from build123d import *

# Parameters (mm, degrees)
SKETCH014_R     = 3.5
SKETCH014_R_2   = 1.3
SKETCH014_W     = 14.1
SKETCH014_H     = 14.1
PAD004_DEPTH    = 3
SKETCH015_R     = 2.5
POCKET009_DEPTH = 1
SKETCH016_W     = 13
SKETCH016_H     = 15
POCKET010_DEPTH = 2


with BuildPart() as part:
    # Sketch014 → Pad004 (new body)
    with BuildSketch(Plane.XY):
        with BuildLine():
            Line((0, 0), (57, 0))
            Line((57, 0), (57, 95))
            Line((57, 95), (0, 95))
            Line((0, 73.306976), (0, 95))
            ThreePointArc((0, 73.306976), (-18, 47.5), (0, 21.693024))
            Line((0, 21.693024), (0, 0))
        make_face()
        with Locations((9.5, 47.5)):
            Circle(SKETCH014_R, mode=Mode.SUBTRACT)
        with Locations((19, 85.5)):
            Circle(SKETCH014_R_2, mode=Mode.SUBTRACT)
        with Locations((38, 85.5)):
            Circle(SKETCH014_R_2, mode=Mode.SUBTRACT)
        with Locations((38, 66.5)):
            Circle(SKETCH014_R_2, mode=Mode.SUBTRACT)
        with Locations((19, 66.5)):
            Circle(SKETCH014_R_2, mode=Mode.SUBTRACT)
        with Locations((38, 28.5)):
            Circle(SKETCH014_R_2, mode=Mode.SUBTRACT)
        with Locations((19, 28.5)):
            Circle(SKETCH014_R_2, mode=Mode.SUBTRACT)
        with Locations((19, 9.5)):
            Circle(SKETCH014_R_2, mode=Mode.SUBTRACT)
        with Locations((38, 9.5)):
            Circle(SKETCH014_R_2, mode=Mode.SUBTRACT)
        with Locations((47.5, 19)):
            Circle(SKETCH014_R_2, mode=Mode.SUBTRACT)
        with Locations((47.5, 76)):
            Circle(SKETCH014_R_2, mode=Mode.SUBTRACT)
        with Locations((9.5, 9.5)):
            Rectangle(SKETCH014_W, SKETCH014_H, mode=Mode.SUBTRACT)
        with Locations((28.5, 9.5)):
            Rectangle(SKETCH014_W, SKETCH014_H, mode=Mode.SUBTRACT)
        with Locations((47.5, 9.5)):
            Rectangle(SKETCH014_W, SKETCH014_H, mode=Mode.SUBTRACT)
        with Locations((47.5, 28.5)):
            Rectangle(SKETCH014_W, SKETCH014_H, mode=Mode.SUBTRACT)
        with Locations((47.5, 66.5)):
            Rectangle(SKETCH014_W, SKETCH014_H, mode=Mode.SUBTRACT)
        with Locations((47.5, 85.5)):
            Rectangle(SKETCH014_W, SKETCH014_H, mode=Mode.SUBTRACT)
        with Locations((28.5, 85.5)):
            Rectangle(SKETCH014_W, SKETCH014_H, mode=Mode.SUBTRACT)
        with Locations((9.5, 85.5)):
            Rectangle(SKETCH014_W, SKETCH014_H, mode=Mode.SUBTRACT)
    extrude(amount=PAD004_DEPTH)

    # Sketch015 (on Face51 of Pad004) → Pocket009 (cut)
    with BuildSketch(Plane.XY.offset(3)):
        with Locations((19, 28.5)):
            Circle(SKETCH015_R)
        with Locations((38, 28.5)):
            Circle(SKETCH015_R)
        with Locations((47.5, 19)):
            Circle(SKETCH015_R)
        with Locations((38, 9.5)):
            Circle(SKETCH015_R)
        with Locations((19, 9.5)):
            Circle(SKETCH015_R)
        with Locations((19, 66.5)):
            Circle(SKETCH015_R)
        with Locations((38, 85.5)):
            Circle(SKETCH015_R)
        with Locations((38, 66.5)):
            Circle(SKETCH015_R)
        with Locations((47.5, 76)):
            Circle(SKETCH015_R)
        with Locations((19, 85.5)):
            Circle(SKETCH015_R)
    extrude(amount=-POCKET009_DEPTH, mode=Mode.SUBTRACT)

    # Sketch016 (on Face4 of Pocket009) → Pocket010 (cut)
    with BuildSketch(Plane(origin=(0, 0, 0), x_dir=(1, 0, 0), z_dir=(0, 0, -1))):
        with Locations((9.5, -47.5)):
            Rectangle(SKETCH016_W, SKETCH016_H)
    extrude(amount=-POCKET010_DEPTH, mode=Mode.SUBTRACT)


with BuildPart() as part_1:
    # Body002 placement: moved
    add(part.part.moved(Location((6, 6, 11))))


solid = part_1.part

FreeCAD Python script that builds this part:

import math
import FreeCAD as App
import Part
import Sketcher

V = App.Vector

doc = App.newDocument("Part")
params = doc.addObject("Spreadsheet::Sheet", "Params")
for row, (alias, value) in enumerate([
    ("sketch1_diameter", "7 mm"),
    ("sketch1_diameter2", "2.6 mm"),
    ("sketch1_radius", "27.5 mm"),
    ("sketch1_width", "57 mm"),
    ("sketch1_height", "95 mm"),
    ("pad1_length", "3 mm"),
    ("sketch2_diameter", "5 mm"),
    ("pocket1_length", "1 mm"),
    ("sketch3_width", "13 mm"),
    ("sketch3_height", "15 mm"),
    ("pocket2_length", "2 mm"),
], start=1):
    params.set(f"A{row}", alias)
    params.set(f"B{row}", "=" + value)
    params.setAlias(f"B{row}", alias)

body = doc.addObject("PartDesign::Body", "Body")

# Sketch on XY plane
sketch1 = body.newObject("Sketcher::SketchObject", "Sketch")
sketch1.AttachmentSupport = (doc.getObject("XY_Plane"), [""])
sketch1.MapMode = "FlatFace"
sketch1.addGeometry([
    Part.LineSegment(V(0, 0, 0), V(57, 0, 0)),  # 0
    Part.LineSegment(V(57, 0, 0), V(57, 95, 0)),  # 1
    Part.LineSegment(V(57, 95, 0), V(0, 95, 0)),  # 2
    Part.LineSegment(V(0, 95, 0), V(0, 73.306976, 0)),  # 3
    Part.ArcOfCircle(Part.Circle(V(9.5, 47.5, 0), V(0, 0, 1), 27.5), math.radians(110.209546), math.radians(249.790454)),  # 4
    Part.LineSegment(V(0, 21.693024, 0), V(0, 0, 0)),  # 5
    Part.LineSegment(V(16.55, 2.45, 0), V(2.45, 2.45, 0)),  # 6
    Part.LineSegment(V(2.45, 2.45, 0), V(2.45, 16.55, 0)),  # 7
    Part.LineSegment(V(2.45, 16.55, 0), V(16.55, 16.55, 0)),  # 8
    Part.LineSegment(V(16.55, 16.55, 0), V(16.55, 2.45, 0)),  # 9
    Part.Circle(V(19, 9.5, 0), V(0, 0, 1), 1.3),  # 10
    Part.Circle(V(19, 28.5, 0), V(0, 0, 1), 1.3),  # 11
    Part.LineSegment(V(35.55, 2.45, 0), V(21.45, 2.45, 0)),  # 12
    Part.LineSegment(V(21.45, 2.45, 0), V(21.45, 16.55, 0)),  # 13
    Part.LineSegment(V(21.45, 16.55, 0), V(35.55, 16.55, 0)),  # 14
    Part.LineSegment(V(35.55, 16.55, 0), V(35.55, 2.45, 0)),  # 15
    Part.Circle(V(38, 9.5, 0), V(0, 0, 1), 1.3),  # 16
    Part.LineSegment(V(54.55, 2.45, 0), V(40.45, 2.45, 0)),  # 17
    Part.LineSegment(V(40.45, 2.45, 0), V(40.45, 16.55, 0)),  # 18
    Part.LineSegment(V(40.45, 16.55, 0), V(54.55, 16.55, 0)),  # 19
    Part.LineSegment(V(54.55, 16.55, 0), V(54.55, 2.45, 0)),  # 20
    Part.Circle(V(47.5, 19, 0), V(0, 0, 1), 1.3),  # 21
    Part.Circle(V(38, 28.5, 0), V(0, 0, 1), 1.3),  # 22
    Part.LineSegment(V(54.55, 21.45, 0), V(40.45, 21.45, 0)),  # 23
    Part.LineSegment(V(40.45, 21.45, 0), V(40.45, 35.55, 0)),  # 24
    Part.LineSegment(V(40.45, 35.55, 0), V(54.55, 35.55, 0)),  # 25
    Part.LineSegment(V(54.55, 35.55, 0), V(54.55, 21.45, 0)),  # 26
    Part.Circle(V(9.5, 47.5, 0), V(0, 0, 1), 3.5),  # 27
    Part.Circle(V(19, 66.5, 0), V(0, 0, 1), 1.3),  # 28
    Part.LineSegment(V(16.55, 78.45, 0), V(2.45, 78.45, 0)),  # 29
    Part.LineSegment(V(2.45, 78.45, 0), V(2.45, 92.55, 0)),  # 30
    Part.LineSegment(V(2.45, 92.55, 0), V(16.55, 92.55, 0)),  # 31
    Part.LineSegment(V(16.55, 92.55, 0), V(16.55, 78.45, 0)),  # 32
    Part.Circle(V(19, 85.5, 0), V(0, 0, 1), 1.3),  # 33
    Part.Circle(V(38, 66.5, 0), V(0, 0, 1), 1.3),  # 34
    Part.LineSegment(V(54.55, 59.45, 0), V(40.45, 59.45, 0)),  # 35
    Part.LineSegment(V(40.45, 59.45, 0), V(40.45, 73.55, 0)),  # 36
    Part.LineSegment(V(40.45, 73.55, 0), V(54.55, 73.55, 0)),  # 37
    Part.LineSegment(V(54.55, 73.55, 0), V(54.55, 59.45, 0)),  # 38
    Part.LineSegment(V(35.55, 78.45, 0), V(21.45, 78.45, 0)),  # 39
    Part.LineSegment(V(21.45, 78.45, 0), V(21.45, 92.55, 0)),  # 40
    Part.LineSegment(V(21.45, 92.55, 0), V(35.55, 92.55, 0)),  # 41
    Part.LineSegment(V(35.55, 92.55, 0), V(35.55, 78.45, 0)),  # 42
    Part.Circle(V(38, 85.5, 0), V(0, 0, 1), 1.3),  # 43
    Part.Circle(V(47.5, 76, 0), V(0, 0, 1), 1.3),  # 44
    Part.LineSegment(V(54.55, 78.45, 0), V(40.45, 78.45, 0)),  # 45
    Part.LineSegment(V(40.45, 78.45, 0), V(40.45, 92.55, 0)),  # 46
    Part.LineSegment(V(40.45, 92.55, 0), V(54.55, 92.55, 0)),  # 47
    Part.LineSegment(V(54.55, 92.55, 0), V(54.55, 78.45, 0)),  # 48
], False)
sketch1.addConstraint([
    Sketcher.Constraint("Coincident", 0, 2, 1, 1),
    Sketcher.Constraint("Coincident", 1, 2, 2, 1),
    Sketcher.Constraint("Coincident", 2, 2, 3, 1),
    Sketcher.Constraint("Coincident", 3, 2, 4, 1),
    Sketcher.Constraint("Coincident", 4, 2, 5, 1),
    Sketcher.Constraint("Coincident", 5, 2, 0, 1),
    Sketcher.Constraint("Coincident", 6, 2, 7, 1),
    Sketcher.Constraint("Coincident", 7, 2, 8, 1),
    Sketcher.Constraint("Coincident", 8, 2, 9, 1),
    Sketcher.Constraint("Coincident", 9, 2, 6, 1),
    Sketcher.Constraint("Coincident", 12, 2, 13, 1),
    Sketcher.Constraint("Coincident", 13, 2, 14, 1),
    Sketcher.Constraint("Coincident", 14, 2, 15, 1),
    Sketcher.Constraint("Coincident", 15, 2, 12, 1),
    Sketcher.Constraint("Coincident", 17, 2, 18, 1),
    Sketcher.Constraint("Coincident", 18, 2, 19, 1),
    Sketcher.Constraint("Coincident", 19, 2, 20, 1),
    Sketcher.Constraint("Coincident", 20, 2, 17, 1),
    Sketcher.Constraint("Coincident", 23, 2, 24, 1),
    Sketcher.Constraint("Coincident", 24, 2, 25, 1),
    Sketcher.Constraint("Coincident", 25, 2, 26, 1),
    Sketcher.Constraint("Coincident", 26, 2, 23, 1),
    Sketcher.Constraint("Coincident", 29, 2, 30, 1),
    Sketcher.Constraint("Coincident", 30, 2, 31, 1),
    Sketcher.Constraint("Coincident", 31, 2, 32, 1),
    Sketcher.Constraint("Coincident", 32, 2, 29, 1),
    Sketcher.Constraint("Coincident", 35, 2, 36, 1),
    Sketcher.Constraint("Coincident", 36, 2, 37, 1),
    Sketcher.Constraint("Coincident", 37, 2, 38, 1),
    Sketcher.Constraint("Coincident", 38, 2, 35, 1),
    Sketcher.Constraint("Coincident", 39, 2, 40, 1),
    Sketcher.Constraint("Coincident", 40, 2, 41, 1),
    Sketcher.Constraint("Coincident", 41, 2, 42, 1),
    Sketcher.Constraint("Coincident", 42, 2, 39, 1),
    Sketcher.Constraint("Coincident", 45, 2, 46, 1),
    Sketcher.Constraint("Coincident", 46, 2, 47, 1),
    Sketcher.Constraint("Coincident", 47, 2, 48, 1),
    Sketcher.Constraint("Coincident", 48, 2, 45, 1),
    Sketcher.Constraint("Horizontal", 0),
    Sketcher.Constraint("Vertical", 1),
    Sketcher.Constraint("Horizontal", 2),
    Sketcher.Constraint("Vertical", 3),
    Sketcher.Constraint("Vertical", 5),
    Sketcher.Constraint("Horizontal", 6),
    Sketcher.Constraint("Vertical", 7),
    Sketcher.Constraint("Horizontal", 8),
    Sketcher.Constraint("Vertical", 9),
    Sketcher.Constraint("Horizontal", 12),
    Sketcher.Constraint("Vertical", 13),
    Sketcher.Constraint("Horizontal", 14),
    Sketcher.Constraint("Vertical", 15),
    Sketcher.Constraint("Horizontal", 17),
    Sketcher.Constraint("Vertical", 18),
    Sketcher.Constraint("Horizontal", 19),
    Sketcher.Constraint("Vertical", 20),
    Sketcher.Constraint("Horizontal", 23),
    Sketcher.Constraint("Vertical", 24),
    Sketcher.Constraint("Horizontal", 25),
    Sketcher.Constraint("Vertical", 26),
    Sketcher.Constraint("Horizontal", 29),
    Sketcher.Constraint("Vertical", 30),
    Sketcher.Constraint("Horizontal", 31),
    Sketcher.Constraint("Vertical", 32),
    Sketcher.Constraint("Horizontal", 35),
    Sketcher.Constraint("Vertical", 36),
    Sketcher.Constraint("Horizontal", 37),
    Sketcher.Constraint("Vertical", 38),
    Sketcher.Constraint("Horizontal", 39),
    Sketcher.Constraint("Vertical", 40),
    Sketcher.Constraint("Horizontal", 41),
    Sketcher.Constraint("Vertical", 42),
    Sketcher.Constraint("Horizontal", 45),
    Sketcher.Constraint("Vertical", 46),
    Sketcher.Constraint("Horizontal", 47),
    Sketcher.Constraint("Vertical", 48),
    Sketcher.Constraint("Coincident", 5, 2, -1, 1),
    Sketcher.Constraint("Coincident", 27, 3, 4, 3),
    Sketcher.Constraint("Equal", 10, 11),
    Sketcher.Constraint("Equal", 11, 16),
    Sketcher.Constraint("Equal", 16, 21),
    Sketcher.Constraint("Equal", 21, 22),
    Sketcher.Constraint("Equal", 22, 28),
    Sketcher.Constraint("Equal", 28, 33),
    Sketcher.Constraint("Equal", 33, 34),
    Sketcher.Constraint("Equal", 34, 43),
    Sketcher.Constraint("Equal", 43, 44),
    Sketcher.Constraint("PointOnObject", 2, 2, -2),
    Sketcher.Constraint("Horizontal", 10, 3, 16, 3),
    Sketcher.Constraint("Horizontal", 11, 3, 22, 3),
    Sketcher.Constraint("Horizontal", 28, 3, 34, 3),
    Sketcher.Constraint("Horizontal", 33, 3, 43, 3),
    Sketcher.Constraint("Horizontal", 9, 2, 12, 2),
    Sketcher.Constraint("Horizontal", 8, 2, 13, 2),
    Sketcher.Constraint("Horizontal", 15, 2, 17, 2),
    Sketcher.Constraint("Horizontal", 14, 2, 18, 2),
    Sketcher.Constraint("Horizontal", 32, 2, 39, 2),
    Sketcher.Constraint("Horizontal", 31, 2, 40, 2),
    Sketcher.Constraint("Horizontal", 42, 2, 45, 2),
    Sketcher.Constraint("Horizontal", 41, 2, 46, 2),
    Sketcher.Constraint("Vertical", 10, 3, 11, 3),
    Sketcher.Constraint("Vertical", 16, 3, 22, 3),
    Sketcher.Constraint("Vertical", 11, 3, 28, 3),
    Sketcher.Constraint("Vertical", 28, 3, 33, 3),
    Sketcher.Constraint("Vertical", 22, 3, 34, 3),
    Sketcher.Constraint("Vertical", 34, 3, 43, 3),
    Sketcher.Constraint("Vertical", 21, 3, 44, 3),
    Sketcher.Constraint("Vertical", 18, 2, 23, 2),
    Sketcher.Constraint("Vertical", 20, 2, 25, 2),
    Sketcher.Constraint("Vertical", 7, 2, 29, 2),
    Sketcher.Constraint("Vertical", 9, 2, 31, 2),
    Sketcher.Constraint("Vertical", 24, 2, 35, 2),
    Sketcher.Constraint("Vertical", 26, 2, 37, 2),
    Sketcher.Constraint("Vertical", 13, 2, 39, 2),
    Sketcher.Constraint("Vertical", 15, 2, 41, 2),
    Sketcher.Constraint("Vertical", 36, 2, 45, 2),
    Sketcher.Constraint("Vertical", 38, 2, 47, 2),
    Sketcher.Constraint("Equal", 8, 12),
    Sketcher.Constraint("Equal", 14, 17),
    Sketcher.Constraint("Equal", 3, 5),
    Sketcher.Constraint("Equal", 47, 7),
    Sketcher.Constraint("Equal", 20, 24),
    Sketcher.Constraint("Equal", 26, 30),
    Sketcher.Constraint("Equal", 32, 36),
    Sketcher.Constraint("Diameter", 27, 7.0),
    Sketcher.Constraint("Diameter", 10, 2.6),
    Sketcher.Constraint("Radius", 4, 27.5),
    Sketcher.Constraint("DistanceX", 0, 1, 0, 2, 57.0),
    Sketcher.Constraint("DistanceY", 1, 1, 1, 2, 95.0),
    Sketcher.Constraint("DistanceX", 6, 2, 6, 1, 14.1),
    Sketcher.Constraint("DistanceX", -1, 1, 10, 3, 19.0),
    Sketcher.Constraint("DistanceX", -1, 1, 16, 3, 38.0),
    Sketcher.Constraint("DistanceY", -1, 1, 21, 3, 19.0),
    Sketcher.Constraint("DistanceY", -1, 1, 44, 3, 76.0),
    Sketcher.Constraint("DistanceY", 10, 3, 4, 3, 38.0),
    Sketcher.Constraint("DistanceY", 10, 3, 11, 3, 19.0),
    Sketcher.Constraint("DistanceX", 4, 3, 21, 3, 38.0),
    Sketcher.Constraint("DistanceY", 4, 3, 28, 3, 19.0),
    Sketcher.Constraint("DistanceY", 28, 3, 33, 3, 19.0),
    Sketcher.Constraint("DistanceX", 6, 2, 12, 2, 19.0),
    Sketcher.Constraint("DistanceX", 14, 2, 19, 2, 19.0),
    Sketcher.Constraint("DistanceY", 18, 2, 24, 2, 19.0),
    Sketcher.Constraint("DistanceY", 36, 2, 41, 2, 19.0),
    Sketcher.Constraint("DistanceX", -1, 1, 4, 3, 9.5),
    Sketcher.Constraint("DistanceY", 24, 2, 35, 2, 23.9),
    Sketcher.Constraint("DistanceX", -1, 1, 6, 2, 2.45),
    Sketcher.Constraint("DistanceY", -1, 1, 6, 2, 2.45),
])
sketch1.setExpression("Constraints[123]", "Params.sketch1_diameter")
sketch1.setExpression("Constraints[124]", "Params.sketch1_diameter2")
sketch1.setExpression("Constraints[125]", "Params.sketch1_radius")
sketch1.setExpression("Constraints[126]", "Params.sketch1_width")
sketch1.setExpression("Constraints[127]", "Params.sketch1_height")
pad1 = body.newObject("PartDesign::Pad", "Pad")
pad1.Profile = sketch1
pad1.setExpression("Length", "Params.pad1_length")

# Sketch on XY plane
sketch2 = body.newObject("Sketcher::SketchObject", "Sketch001")
sketch2.AttachmentSupport = (doc.getObject("XY_Plane"), [""])
sketch2.MapMode = "FlatFace"
sketch2.AttachmentOffset = App.Placement(V(0, 0, 3), App.Rotation())
sketch2.addGeometry([
    Part.Circle(V(19, 28.5, 0), V(0, 0, 1), 2.5),  # 0
    Part.Circle(V(38, 28.5, 0), V(0, 0, 1), 2.5),  # 1
    Part.Circle(V(47.5, 19, 0), V(0, 0, 1), 2.5),  # 2
    Part.Circle(V(38, 9.5, 0), V(0, 0, 1), 2.5),  # 3
    Part.Circle(V(19, 9.5, 0), V(0, 0, 1), 2.5),  # 4
    Part.Circle(V(19, 66.5, 0), V(0, 0, 1), 2.5),  # 5
    Part.Circle(V(38, 85.5, 0), V(0, 0, 1), 2.5),  # 6
    Part.Circle(V(38, 66.5, 0), V(0, 0, 1), 2.5),  # 7
    Part.Circle(V(47.5, 76, 0), V(0, 0, 1), 2.5),  # 8
    Part.Circle(V(19, 85.5, 0), V(0, 0, 1), 2.5),  # 9
], False)
sketch2.addConstraint([
    Sketcher.Constraint("Equal", 0, 1),
    Sketcher.Constraint("Equal", 1, 2),
    Sketcher.Constraint("Equal", 2, 3),
    Sketcher.Constraint("Equal", 3, 4),
    Sketcher.Constraint("Equal", 4, 5),
    Sketcher.Constraint("Equal", 5, 6),
    Sketcher.Constraint("Equal", 6, 7),
    Sketcher.Constraint("Equal", 7, 8),
    Sketcher.Constraint("Equal", 8, 9),
    Sketcher.Constraint("Horizontal", 0, 3, 1, 3),
    Sketcher.Constraint("Horizontal", 3, 3, 4, 3),
    Sketcher.Constraint("Horizontal", 5, 3, 7, 3),
    Sketcher.Constraint("Horizontal", 6, 3, 9, 3),
    Sketcher.Constraint("Vertical", 1, 3, 3, 3),
    Sketcher.Constraint("Vertical", 0, 3, 4, 3),
    Sketcher.Constraint("Vertical", 4, 3, 5, 3),
    Sketcher.Constraint("Vertical", 3, 3, 6, 3),
    Sketcher.Constraint("Vertical", 6, 3, 7, 3),
    Sketcher.Constraint("Vertical", 2, 3, 8, 3),
    Sketcher.Constraint("Vertical", 5, 3, 9, 3),
    Sketcher.Constraint("Diameter", 0, 5.0),
    Sketcher.Constraint("DistanceX", -1, 1, 0, 3, 19.0),
    Sketcher.Constraint("DistanceX", -1, 1, 1, 3, 38.0),
    Sketcher.Constraint("DistanceY", -1, 1, 2, 3, 19.0),
    Sketcher.Constraint("DistanceY", -1, 1, 8, 3, 76.0),
    Sketcher.Constraint("DistanceY", 3, 3, 1, 3, 19.0),
    Sketcher.Constraint("DistanceY", 0, 3, 5, 3, 38.0),
    Sketcher.Constraint("DistanceY", 5, 3, 6, 3, 19.0),
    Sketcher.Constraint("DistanceY", -1, 1, 0, 3, 28.5),
    Sketcher.Constraint("DistanceX", -1, 1, 2, 3, 47.5),
])
sketch2.setExpression("Constraints[20]", "Params.sketch2_diameter")
pocket1 = body.newObject("PartDesign::Pocket", "Pocket")
pocket1.Profile = sketch2
pocket1.setExpression("Length", "Params.pocket1_length")

# Sketch on XY plane
sketch3 = body.newObject("Sketcher::SketchObject", "Sketch002")
sketch3.AttachmentSupport = (doc.getObject("XY_Plane"), [""])
sketch3.MapMode = "FlatFace"
sketch3.addGeometry([
    Part.LineSegment(V(3, 40, 0), V(3, 55, 0)),
    Part.LineSegment(V(3, 55, 0), V(16, 55, 0)),
    Part.LineSegment(V(16, 55, 0), V(16, 40, 0)),
    Part.LineSegment(V(16, 40, 0), V(3, 40, 0)),
], False)
sketch3.addConstraint([
    Sketcher.Constraint("Coincident", 0, 2, 1, 1),
    Sketcher.Constraint("Coincident", 1, 2, 2, 1),
    Sketcher.Constraint("Coincident", 2, 2, 3, 1),
    Sketcher.Constraint("Coincident", 3, 2, 0, 1),
    Sketcher.Constraint("Vertical", 0),
    Sketcher.Constraint("Horizontal", 1),
    Sketcher.Constraint("Vertical", 2),
    Sketcher.Constraint("Horizontal", 3),
    Sketcher.Constraint("DistanceX", 1, 1, 1, 2, 13.0),
    Sketcher.Constraint("DistanceY", 0, 1, 0, 2, 15.0),
    Sketcher.Constraint("DistanceX", -1, 1, 0, 2, 3.0),
    Sketcher.Constraint("DistanceY", -1, 1, 0, 2, 55.0),
])
sketch3.setExpression("Constraints[8]", "Params.sketch3_width")
sketch3.setExpression("Constraints[9]", "Params.sketch3_height")
pocket2 = body.newObject("PartDesign::Pocket", "Pocket001")
pocket2.Profile = sketch3
pocket2.setExpression("Length", "Params.pocket2_length")
pocket2.Reversed = True
body2 = doc.addObject("PartDesign::Body", "Body001")
doc.recompute()

body.Placement = App.Placement(V(6, 6, 11), App.Rotation(V(0, 0, 1), 0))
boolean = body2.newObject("PartDesign::Boolean", "Boolean")
boolean.Type = "Fuse"
boolean.addObjects([body])

doc.recompute()
